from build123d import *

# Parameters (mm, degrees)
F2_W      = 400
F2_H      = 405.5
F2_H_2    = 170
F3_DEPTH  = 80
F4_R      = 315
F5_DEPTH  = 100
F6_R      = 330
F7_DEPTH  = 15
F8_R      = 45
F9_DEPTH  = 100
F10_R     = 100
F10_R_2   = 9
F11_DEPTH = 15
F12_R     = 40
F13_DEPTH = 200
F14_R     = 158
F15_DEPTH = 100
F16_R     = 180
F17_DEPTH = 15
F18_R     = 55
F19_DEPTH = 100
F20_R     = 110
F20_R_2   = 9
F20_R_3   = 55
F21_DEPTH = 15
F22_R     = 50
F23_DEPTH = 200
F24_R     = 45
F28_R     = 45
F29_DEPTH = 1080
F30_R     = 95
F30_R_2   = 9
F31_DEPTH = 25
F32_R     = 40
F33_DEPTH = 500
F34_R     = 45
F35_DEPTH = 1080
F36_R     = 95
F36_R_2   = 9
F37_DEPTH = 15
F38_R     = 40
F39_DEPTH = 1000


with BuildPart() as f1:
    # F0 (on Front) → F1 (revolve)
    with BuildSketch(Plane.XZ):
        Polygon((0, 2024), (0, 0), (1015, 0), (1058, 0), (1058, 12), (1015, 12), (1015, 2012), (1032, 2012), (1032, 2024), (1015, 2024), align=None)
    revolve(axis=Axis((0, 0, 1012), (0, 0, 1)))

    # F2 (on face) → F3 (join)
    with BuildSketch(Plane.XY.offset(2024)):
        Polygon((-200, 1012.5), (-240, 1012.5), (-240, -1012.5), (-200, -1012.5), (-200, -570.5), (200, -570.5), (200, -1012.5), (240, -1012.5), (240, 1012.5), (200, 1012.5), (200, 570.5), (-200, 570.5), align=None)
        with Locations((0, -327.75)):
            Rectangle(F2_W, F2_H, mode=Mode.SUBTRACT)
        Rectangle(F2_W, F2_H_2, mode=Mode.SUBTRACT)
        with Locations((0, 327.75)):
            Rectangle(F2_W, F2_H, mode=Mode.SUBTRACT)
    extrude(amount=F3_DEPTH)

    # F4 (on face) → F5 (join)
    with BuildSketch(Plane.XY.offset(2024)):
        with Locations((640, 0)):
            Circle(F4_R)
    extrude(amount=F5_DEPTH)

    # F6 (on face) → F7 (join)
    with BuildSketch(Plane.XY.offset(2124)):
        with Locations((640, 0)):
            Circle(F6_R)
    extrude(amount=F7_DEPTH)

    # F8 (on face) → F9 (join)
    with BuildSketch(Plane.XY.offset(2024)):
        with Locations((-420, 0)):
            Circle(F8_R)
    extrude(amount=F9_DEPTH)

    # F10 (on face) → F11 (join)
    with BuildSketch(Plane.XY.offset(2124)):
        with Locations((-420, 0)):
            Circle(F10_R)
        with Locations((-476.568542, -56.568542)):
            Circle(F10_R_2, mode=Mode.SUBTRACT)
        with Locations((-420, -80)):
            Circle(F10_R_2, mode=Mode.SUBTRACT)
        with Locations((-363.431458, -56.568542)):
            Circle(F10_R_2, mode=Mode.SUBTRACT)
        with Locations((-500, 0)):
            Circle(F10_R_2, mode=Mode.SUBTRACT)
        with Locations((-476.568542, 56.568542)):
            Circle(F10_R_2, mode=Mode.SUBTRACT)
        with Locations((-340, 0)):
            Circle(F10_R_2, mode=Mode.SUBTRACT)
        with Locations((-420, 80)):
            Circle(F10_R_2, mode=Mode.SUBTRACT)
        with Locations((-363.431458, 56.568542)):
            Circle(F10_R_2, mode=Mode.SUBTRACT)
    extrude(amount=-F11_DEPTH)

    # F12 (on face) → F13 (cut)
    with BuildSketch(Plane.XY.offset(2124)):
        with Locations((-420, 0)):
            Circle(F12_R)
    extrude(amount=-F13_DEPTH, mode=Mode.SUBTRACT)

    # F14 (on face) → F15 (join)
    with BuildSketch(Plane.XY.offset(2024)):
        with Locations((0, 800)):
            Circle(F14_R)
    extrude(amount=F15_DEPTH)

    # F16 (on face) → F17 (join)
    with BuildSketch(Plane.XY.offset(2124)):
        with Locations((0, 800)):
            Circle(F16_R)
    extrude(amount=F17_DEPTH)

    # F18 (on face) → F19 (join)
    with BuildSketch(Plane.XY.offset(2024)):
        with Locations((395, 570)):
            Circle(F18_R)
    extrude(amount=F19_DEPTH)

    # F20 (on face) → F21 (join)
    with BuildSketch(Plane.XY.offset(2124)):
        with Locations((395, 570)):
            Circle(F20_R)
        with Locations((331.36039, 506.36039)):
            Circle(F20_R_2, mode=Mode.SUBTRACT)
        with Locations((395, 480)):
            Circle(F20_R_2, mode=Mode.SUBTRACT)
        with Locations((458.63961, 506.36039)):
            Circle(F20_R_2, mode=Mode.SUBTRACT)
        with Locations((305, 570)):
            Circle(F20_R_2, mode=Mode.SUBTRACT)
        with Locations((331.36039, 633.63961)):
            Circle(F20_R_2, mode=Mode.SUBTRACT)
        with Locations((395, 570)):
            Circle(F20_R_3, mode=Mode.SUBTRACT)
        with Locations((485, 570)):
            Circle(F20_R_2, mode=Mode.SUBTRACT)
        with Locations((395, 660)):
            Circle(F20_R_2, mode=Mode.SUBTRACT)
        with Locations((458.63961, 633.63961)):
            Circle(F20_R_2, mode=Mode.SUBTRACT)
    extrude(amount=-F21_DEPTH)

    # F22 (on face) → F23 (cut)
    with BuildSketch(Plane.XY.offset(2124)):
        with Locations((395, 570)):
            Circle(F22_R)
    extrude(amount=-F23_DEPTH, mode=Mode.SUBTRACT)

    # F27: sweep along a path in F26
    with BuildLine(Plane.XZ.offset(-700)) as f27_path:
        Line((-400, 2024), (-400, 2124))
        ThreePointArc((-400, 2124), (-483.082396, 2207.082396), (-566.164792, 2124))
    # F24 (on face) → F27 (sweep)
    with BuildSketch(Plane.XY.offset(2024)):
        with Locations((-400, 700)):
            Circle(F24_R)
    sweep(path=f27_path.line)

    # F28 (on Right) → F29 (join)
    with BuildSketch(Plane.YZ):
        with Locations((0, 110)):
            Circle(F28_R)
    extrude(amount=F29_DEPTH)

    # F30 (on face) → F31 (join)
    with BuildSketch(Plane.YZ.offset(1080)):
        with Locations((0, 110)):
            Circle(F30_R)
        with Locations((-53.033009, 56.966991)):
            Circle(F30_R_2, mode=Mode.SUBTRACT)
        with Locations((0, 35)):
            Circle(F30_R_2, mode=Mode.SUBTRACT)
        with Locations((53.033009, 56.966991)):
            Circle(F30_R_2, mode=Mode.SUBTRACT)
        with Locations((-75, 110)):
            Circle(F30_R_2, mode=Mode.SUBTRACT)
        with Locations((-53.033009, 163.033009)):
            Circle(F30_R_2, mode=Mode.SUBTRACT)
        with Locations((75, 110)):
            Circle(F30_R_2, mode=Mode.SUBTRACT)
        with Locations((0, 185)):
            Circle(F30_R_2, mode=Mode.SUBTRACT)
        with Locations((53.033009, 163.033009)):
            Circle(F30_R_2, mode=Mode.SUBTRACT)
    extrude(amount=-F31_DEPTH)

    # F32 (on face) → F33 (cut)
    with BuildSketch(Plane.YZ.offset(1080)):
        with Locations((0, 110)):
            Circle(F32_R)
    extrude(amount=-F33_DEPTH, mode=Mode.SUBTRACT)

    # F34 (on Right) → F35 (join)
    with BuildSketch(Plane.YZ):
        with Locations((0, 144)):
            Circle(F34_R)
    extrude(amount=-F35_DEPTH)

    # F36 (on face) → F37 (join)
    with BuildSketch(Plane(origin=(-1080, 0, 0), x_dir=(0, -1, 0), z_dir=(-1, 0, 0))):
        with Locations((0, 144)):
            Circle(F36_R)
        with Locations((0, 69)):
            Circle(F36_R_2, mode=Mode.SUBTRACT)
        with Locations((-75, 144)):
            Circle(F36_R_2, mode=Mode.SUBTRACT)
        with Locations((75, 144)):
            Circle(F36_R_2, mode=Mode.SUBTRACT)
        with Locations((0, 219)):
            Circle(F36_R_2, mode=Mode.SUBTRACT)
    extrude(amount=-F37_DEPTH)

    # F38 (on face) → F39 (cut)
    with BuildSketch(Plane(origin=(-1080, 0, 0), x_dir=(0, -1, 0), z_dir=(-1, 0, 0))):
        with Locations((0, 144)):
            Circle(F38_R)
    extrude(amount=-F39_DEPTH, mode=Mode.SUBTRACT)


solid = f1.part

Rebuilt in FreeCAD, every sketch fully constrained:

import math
import FreeCAD as App
import Part
import Sketcher
from FreeCAD import Vector


def add_polygon(sketch, points):
    """Adds a closed chain of lines whose ends are joined by coincident constraints."""
    first, n = sketch.GeometryCount, len(points)
    for a, b in zip(points, points[1:] + points[:1]):
        sketch.addGeometry(Part.LineSegment(App.Vector(*a, 0), App.Vector(*b, 0)), False)
    for i in range(n):
        sketch.addConstraint(Sketcher.Constraint("Coincident", first + i, 2, first + (i + 1) % n, 1))

doc = App.newDocument("Part")
body = doc.addObject("PartDesign::Body", "Body")

# Sketch on XZ plane
sketch1 = body.newObject("Sketcher::SketchObject", "Sketch")
sketch1.AttachmentSupport = (doc.getObject("XZ_Plane"), [""])
sketch1.MapMode = "FlatFace"
add_polygon(sketch1, [(0, 2024), (0, 0), (1058, 0), (1058, 12), (1015, 12), (1015, 2012), (1032, 2012), (1032, 2024)])  # lines 0-7
sketch1.addConstraint([
    Sketcher.Constraint("Vertical", 0),
    Sketcher.Constraint("Horizontal", 1),
    Sketcher.Constraint("Vertical", 2),
    Sketcher.Constraint("Horizontal", 3),
    Sketcher.Constraint("Vertical", 4),
    Sketcher.Constraint("Horizontal", 5),
    Sketcher.Constraint("Vertical", 6),
    Sketcher.Constraint("Horizontal", 7),
    Sketcher.Constraint("Coincident", 0, 2, -1, 1),
    Sketcher.Constraint("Equal", 2, 6),
    Sketcher.Constraint("DistanceX", 1, 1, 1, 2, 1058.0),
    Sketcher.Constraint("DistanceX", 3, 2, 3, 1, 43.0),
    Sketcher.Constraint("DistanceX", 5, 1, 5, 2, 17.0),
    Sketcher.Constraint("DistanceY", 0, 2, 0, 1, 2024.0),
    Sketcher.Constraint("DistanceY", 2, 1, 2, 2, 12.0),
])
revolution = body.newObject("PartDesign::Revolution", "Revolution")
revolution.Profile = sketch1
revolution.ReferenceAxis = (sketch1, ["V_Axis"])
revolution.Angle = 360

# Sketch on XY plane
sketch2 = body.newObject("Sketcher::SketchObject", "Sketch001")
sketch2.AttachmentSupport = (doc.getObject("XY_Plane"), [""])
sketch2.MapMode = "FlatFace"
sketch2.AttachmentOffset = App.Placement(Vector(0, 0, 2024), App.Rotation())
add_polygon(sketch2, [(-200, 1012), (-240, 1012), (-240, -1012), (-200, -1012), (-200, -570), (200, -570), (200, -1012), (240, -1012), (240, 1012), (200, 1012), (200, 570), (-200, 570)])  # lines 0-11
add_polygon(sketch2, [(200, -530), (-200, -530), (-200, -125), (200, -125)])  # lines 12-15
add_polygon(sketch2, [(200, -85), (-200, -85), (-200, 85), (200, 85)])  # lines 16-19
add_polygon(sketch2, [(200, 125), (-200, 125), (-200, 530), (200, 530)])  # lines 20-23
sketch2.addConstraint([
    Sketcher.Constraint("Horizontal", 0),
    Sketcher.Constraint("Vertical", 1),
    Sketcher.Constraint("Horizontal", 2),
    Sketcher.Constraint("Vertical", 3),
    Sketcher.Constraint("Horizontal", 4),
    Sketcher.Constraint("Vertical", 5),
    Sketcher.Constraint("Horizontal", 6),
    Sketcher.Constraint("Vertical", 7),
    Sketcher.Constraint("Horizontal", 8),
    Sketcher.Constraint("Vertical", 9),
    Sketcher.Constraint("Horizontal", 10),
    Sketcher.Constraint("Vertical", 11),
    Sketcher.Constraint("Horizontal", 12),
    Sketcher.Constraint("Vertical", 13),
    Sketcher.Constraint("Horizontal", 14),
    Sketcher.Constraint("Vertical", 15),
    Sketcher.Constraint("Horizontal", 16),
    Sketcher.Constraint("Vertical", 17),
    Sketcher.Constraint("Horizontal", 18),
    Sketcher.Constraint("Vertical", 19),
    Sketcher.Constraint("Horizontal", 20),
    Sketcher.Constraint("Vertical", 21),
    Sketcher.Constraint("Horizontal", 22),
    Sketcher.Constraint("Vertical", 23),
    Sketcher.Constraint("Symmetric", 0, 2, 6, 2, -1, 1),
    Sketcher.Constraint("Symmetric", 2, 2, 8, 2, -1, 1),
    Sketcher.Constraint("Symmetric", 4, 2, 10, 2, -1, 1),
    Sketcher.Constraint("Symmetric", 16, 2, 18, 2, -1, 1),
    Sketcher.Constraint("Symmetric", 14, 2, 20, 2, -1, 1),
    Sketcher.Constraint("Symmetric", 12, 2, 22, 2, -1, 1),
    Sketcher.Constraint("Symmetric", 2, 2, 5, 2, -2),
    Sketcher.Constraint("Vertical", 11, 2, 12, 2),
    Sketcher.Constraint("Vertical", 9, 2, 14, 2),
    Sketcher.Constraint("Vertical", 13, 2, 16, 2),
    Sketcher.Constraint("DistanceX", 0, 2, 0, 1, 40.0),
    Sketcher.Constraint("DistanceX", 4, 1, 4, 2, 400.0),
    Sketcher.Constraint("DistanceY", 1, 2, 1, 1, 2025.0),
    Sketcher.Constraint("DistanceY", 3, 1, 3, 2, 442.0),
    Sketcher.Constraint("DistanceY", 17, 1, 17, 2, 170.0),
    Sketcher.Constraint("DistanceY", 13, 1, 13, 2, 405.5),
    Sketcher.Constraint("DistanceY", 13, 2, -1, 1, 125.0),
])
pad1 = body.newObject("PartDesign::Pad", "Pad")
pad1.Profile = sketch2
pad1.Length = 80

# Sketch on XY plane
sketch3 = body.newObject("Sketcher::SketchObject", "Sketch002")
sketch3.AttachmentSupport = (doc.getObject("XY_Plane"), [""])
sketch3.MapMode = "FlatFace"
sketch3.AttachmentOffset = App.Placement(Vector(0, 0, 2024), App.Rotation())
sketch3.addGeometry(Part.Circle(Vector(640, 0, 0), Vector(0, 0, 1), 315), False)
sketch3.addConstraint([
    Sketcher.Constraint("PointOnObject", 0, 3, -1),
    Sketcher.Constraint("Diameter", 0, 630.0),
    Sketcher.Constraint("DistanceX", -1, 1, 0, 3, 640.0),
])
pad2 = body.newObject("PartDesign::Pad", "Pad001")
pad2.Profile = sketch3
pad2.Length = 100

# Sketch on XY plane
sketch4 = body.newObject("Sketcher::SketchObject", "Sketch003")
sketch4.AttachmentSupport = (doc.getObject("XY_Plane"), [""])
sketch4.MapMode = "FlatFace"
sketch4.AttachmentOffset = App.Placement(Vector(0, 0, 2124), App.Rotation())
sketch4.addGeometry(Part.Circle(Vector(640, 0, 0), Vector(0, 0, 1), 330), False)
sketch4.addConstraint([
    Sketcher.Constraint("PointOnObject", 0, 3, -1),
    Sketcher.Constraint("Diameter", 0, 660.0),
    Sketcher.Constraint("DistanceX", -1, 1, 0, 3, 640.0),
])
pad3 = body.newObject("PartDesign::Pad", "Pad002")
pad3.Profile = sketch4
pad3.Length = 15

# Sketch on XY plane
sketch5 = body.newObject("Sketcher::SketchObject", "Sketch004")
sketch5.AttachmentSupport = (doc.getObject("XY_Plane"), [""])
sketch5.MapMode = "FlatFace"
sketch5.AttachmentOffset = App.Placement(Vector(0, 0, 2024), App.Rotation())
sketch5.addGeometry(Part.Circle(Vector(-420, 0, 0), Vector(0, 0, 1), 45), False)
sketch5.addConstraint([
    Sketcher.Constraint("PointOnObject", 0, 3, -1),
    Sketcher.Constraint("Diameter", 0, 90.0),
    Sketcher.Constraint("DistanceX", 0, 3, -1, 1, 420.0),
])
pad4 = body.newObject("PartDesign::Pad", "Pad003")
pad4.Profile = sketch5
pad4.Length = 100

# Sketch on XY plane
sketch6 = body.newObject("Sketcher::SketchObject", "Sketch005")
sketch6.AttachmentSupport = (doc.getObject("XY_Plane"), [""])
sketch6.MapMode = "FlatFace"
sketch6.AttachmentOffset = App.Placement(Vector(0, 0, 2124), App.Rotation())
sketch6.addGeometry([
    Part.Circle(Vector(-420, 0, 0), Vector(0, 0, 1), 100),  # 0
    Part.Circle(Vector(-477, -57, 0), Vector(0, 0, 1), 9),  # 1
    Part.Circle(Vector(-420, -80, 0), Vector(0, 0, 1), 9),  # 2
    Part.Circle(Vector(-363, -57, 0), Vector(0, 0, 1), 9),  # 3
    Part.Circle(Vector(-500, 0, 0), Vector(0, 0, 1), 9),  # 4
    Part.Circle(Vector(-477, 57, 0), Vector(0, 0, 1), 9),  # 5
    Part.Circle(Vector(-340, 0, 0), Vector(0, 0, 1), 9),  # 6
    Part.Circle(Vector(-420, 80, 0), Vector(0, 0, 1), 9),  # 7
    Part.Circle(Vector(-363, 57, 0), Vector(0, 0, 1), 9),  # 8
], False)
sketch6.addConstraint([
    Sketcher.Constraint("Equal", 1, 2),
    Sketcher.Constraint("Equal", 2, 3),
    Sketcher.Constraint("Equal", 3, 4),
    Sketcher.Constraint("Equal", 4, 5),
    Sketcher.Constraint("Equal", 5, 6),
    Sketcher.Constraint("Equal", 6, 7),
    Sketcher.Constraint("Equal", 7, 8),
    Sketcher.Constraint("Symmetric", 1, 3, 5, 3, -1),
    Sketcher.Constraint("Symmetric", 2, 3, 7, 3, -1),
    Sketcher.Constraint("Symmetric", 3, 3, 8, 3, -1),
    Sketcher.Constraint("PointOnObject", 0, 3, -1),
    Sketcher.Constraint("PointOnObject", 4, 3, -1),
    Sketcher.Constraint("PointOnObject", 6, 3, -1),
    Sketcher.Constraint("Horizontal", 1, 3, 3, 3),
    Sketcher.Constraint("Vertical", 0, 3, 2, 3),
    Sketcher.Constraint("Diameter", 0, 200.0),
    Sketcher.Constraint("Diameter", 1, 18.0),
    Sketcher.Constraint("DistanceX", 0, 3, -1, 1, 420.0),
    Sketcher.Constraint("DistanceY", 2, 3, -1, 1, 80.0),
    Sketcher.Constraint("DistanceX", 4, 3, -1, 1, 500.0),
    Sketcher.Constraint("DistanceX", 6, 3, -1, 1, 340.0),
    Sketcher.Constraint("DistanceX", 1, 3, -1, 1, 476.568542),
    Sketcher.Constraint("DistanceX", 3, 3, -1, 1, 363.431458),
    Sketcher.Constraint("DistanceY", 2, 3, 5, 3, 136.568542),
])
pad5 = body.newObject("PartDesign::Pad", "Pad004")
pad5.Profile = sketch6
pad5.Length = 15
pad5.Reversed = True

# Sketch on XY plane
sketch7 = body.newObject("Sketcher::SketchObject", "Sketch006")
sketch7.AttachmentSupport = (doc.getObject("XY_Plane"), [""])
sketch7.MapMode = "FlatFace"
sketch7.AttachmentOffset = App.Placement(Vector(0, 0, 2124), App.Rotation())
sketch7.addGeometry(Part.Circle(Vector(-420, 0, 0), Vector(0, 0, 1), 40), False)
sketch7.addConstraint([
    Sketcher.Constraint("PointOnObject", 0, 3, -1),
    Sketcher.Constraint("Diameter", 0, 80.0),
    Sketcher.Constraint("DistanceX", 0, 3, -1, 1, 420.0),
])
pocket1 = body.newObject("PartDesign::Pocket", "Pocket")
pocket1.Profile = sketch7
pocket1.Length = 200

# Sketch on XY plane
sketch8 = body.newObject("Sketcher::SketchObject", "Sketch007")
sketch8.AttachmentSupport = (doc.getObject("XY_Plane"), [""])
sketch8.MapMode = "FlatFace"
sketch8.AttachmentOffset = App.Placement(Vector(0, 0, 2024), App.Rotation())
sketch8.addGeometry(Part.Circle(Vector(0, 800, 0), Vector(0, 0, 1), 158), False)
sketch8.addConstraint([
    Sketcher.Constraint("PointOnObject", 0, 3, -2),
    Sketcher.Constraint("Diameter", 0, 316.0),
    Sketcher.Constraint("DistanceY", -1, 1, 0, 3, 800.0),
])
pad6 = body.newObject("PartDesign::Pad", "Pad005")
pad6.Profile = sketch8
pad6.Length = 100

# Sketch on XY plane
sketch9 = body.newObject("Sketcher::SketchObject", "Sketch008")
sketch9.AttachmentSupport = (doc.getObject("XY_Plane"), [""])
sketch9.MapMode = "FlatFace"
sketch9.AttachmentOffset = App.Placement(Vector(0, 0, 2124), App.Rotation())
sketch9.addGeometry(Part.Circle(Vector(0, 800, 0), Vector(0, 0, 1), 180), False)
sketch9.addConstraint([
    Sketcher.Constraint("PointOnObject", 0, 3, -2),
    Sketcher.Constraint("Diameter", 0, 360.0),
    Sketcher.Constraint("DistanceY", -1, 1, 0, 3, 800.0),
])
pad7 = body.newObject("PartDesign::Pad", "Pad006")
pad7.Profile = sketch9
pad7.Length = 15

# Sketch on XY plane
sketch10 = body.newObject("Sketcher::SketchObject", "Sketch009")
sketch10.AttachmentSupport = (doc.getObject("XY_Plane"), [""])
sketch10.MapMode = "FlatFace"
sketch10.AttachmentOffset = App.Placement(Vector(0, 0, 2024), App.Rotation())
sketch10.addGeometry(Part.Circle(Vector(395, 570, 0), Vector(0, 0, 1), 55), False)
sketch10.addConstraint([
    Sketcher.Constraint("Diameter", 0, 110.0),
    Sketcher.Constraint("DistanceX", -1, 1, 0, 3, 395.0),
    Sketcher.Constraint("DistanceY", -1, 1, 0, 3, 570.0),
])
pad8 = body.newObject("PartDesign::Pad", "Pad007")
pad8.Profile = sketch10
pad8.Length = 100

# Sketch on XY plane
sketch11 = body.newObject("Sketcher::SketchObject", "Sketch010")
sketch11.AttachmentSupport = (doc.getObject("XY_Plane"), [""])
sketch11.MapMode = "FlatFace"
sketch11.AttachmentOffset = App.Placement(Vector(0, 0, 2124), App.Rotation())
sketch11.addGeometry([
    Part.Circle(Vector(395, 570, 0), Vector(0, 0, 1), 110),  # 0
    Part.Circle(Vector(331, 506, 0), Vector(0, 0, 1), 9),  # 1
    Part.Circle(Vector(395, 480, 0), Vector(0, 0, 1), 9),  # 2
    Part.Circle(Vector(459, 506, 0), Vector(0, 0, 1), 9),  # 3
    Part.Circle(Vector(305, 570, 0), Vector(0, 0, 1), 9),  # 4
    Part.Circle(Vector(331, 634, 0), Vector(0, 0, 1), 9),  # 5
    Part.Circle(Vector(395, 570, 0), Vector(0, 0, 1), 55),  # 6
    Part.Circle(Vector(485, 570, 0), Vector(0, 0, 1), 9),  # 7
    Part.Circle(Vector(395, 660, 0), Vector(0, 0, 1), 9),  # 8
    Part.Circle(Vector(459, 634, 0), Vector(0, 0, 1), 9),  # 9
], False)
sketch11.addConstraint([
    Sketcher.Constraint("Coincident", 6, 3, 0, 3),
    Sketcher.Constraint("Equal", 1, 2),
    Sketcher.Constraint("Equal", 2, 3),
    Sketcher.Constraint("Equal", 3, 4),
    Sketcher.Constraint("Equal", 4, 5),
    Sketcher.Constraint("Equal", 5, 7),
    Sketcher.Constraint("Equal", 7, 8),
    Sketcher.Constraint("Equal", 8, 9),
    Sketcher.Constraint("Horizontal", 1, 3, 3, 3),
    Sketcher.Constraint("Horizontal", 0, 3, 4, 3),
    Sketcher.Constraint("Horizontal", 6, 3, 7, 3),
    Sketcher.Constraint("Horizontal", 5, 3, 9, 3),
    Sketcher.Constraint("Vertical", 0, 3, 2, 3),
    Sketcher.Constraint("Vertical", 1, 3, 5, 3),
    Sketcher.Constraint("Vertical", 6, 3, 8, 3),
    Sketcher.Constraint("Vertical", 3, 3, 9, 3),
    Sketcher.Constraint("Diameter", 0, 220.0),
    Sketcher.Constraint("Diameter", 1, 18.0),
    Sketcher.Constraint("Diameter", 6, 110.0),
    Sketcher.Constraint("DistanceX", -1, 1, 0, 3, 395.0),
    Sketcher.Constraint("DistanceY", -1, 1, 0, 3, 570.0),
    Sketcher.Constraint("DistanceY", -1, 1, 2, 3, 480.0),
    Sketcher.Constraint("DistanceX", -1, 1, 4, 3, 305.0),
    Sketcher.Constraint("DistanceX", -1, 1, 7, 3, 485.0),
    Sketcher.Constraint("DistanceY", -1, 1, 8, 3, 660.0),
    Sketcher.Constraint("DistanceX", -1, 1, 1, 3, 331.36039),
    Sketcher.Constraint("DistanceY", -1, 1, 1, 3, 506.36039),
    Sketcher.Constraint("DistanceX", -1, 1, 3, 3, 458.63961),
    Sketcher.Constraint("DistanceY", -1, 1, 5, 3, 633.63961),
])
pad9 = body.newObject("PartDesign::Pad", "Pad008")
pad9.Profile = sketch11
pad9.Length = 15
pad9.Reversed = True

# Sketch on XY plane
sketch12 = body.newObject("Sketcher::SketchObject", "Sketch011")
sketch12.AttachmentSupport = (doc.getObject("XY_Plane"), [""])
sketch12.MapMode = "FlatFace"
sketch12.AttachmentOffset = App.Placement(Vector(0, 0, 2124), App.Rotation())
sketch12.addGeometry(Part.Circle(Vector(395, 570, 0), Vector(0, 0, 1), 50), False)
sketch12.addConstraint([
    Sketcher.Constraint("Diameter", 0, 100.0),
    Sketcher.Constraint("DistanceX", -1, 1, 0, 3, 395.0),
    Sketcher.Constraint("DistanceY", -1, 1, 0, 3, 570.0),
])
pocket2 = body.newObject("PartDesign::Pocket", "Pocket001")
pocket2.Profile = sketch12
pocket2.Length = 200

# Sketch on XY plane
sketch13 = body.newObject("Sketcher::SketchObject", "Sketch012")
sketch13.AttachmentSupport = (doc.getObject("XY_Plane"), [""])
sketch13.MapMode = "FlatFace"
sketch13.AttachmentOffset = App.Placement(Vector(0, 0, 2024), App.Rotation())
sketch13.addGeometry(Part.Circle(Vector(-400, 700, 0), Vector(0, 0, 1), 45), False)
sketch13.addConstraint([
    Sketcher.Constraint("Diameter", 0, 90.0),
    Sketcher.Constraint("DistanceX", 0, 3, -1, 1, 400.0),
    Sketcher.Constraint("DistanceY", -1, 1, 0, 3, 700.0),
])

# Sketch on XZ plane
sketch14 = body.newObject("Sketcher::SketchObject", "Sketch013")
sketch14.AttachmentSupport = (doc.getObject("XZ_Plane"), [""])
sketch14.MapMode = "FlatFace"
sketch14.AttachmentOffset = App.Placement(Vector(0, 0, -700), App.Rotation())
sketch14.addGeometry([
    Part.LineSegment(Vector(-400, 2024, 0), Vector(-400, 2124, 0)),
    Part.ArcOfCircle(Part.Circle(Vector(-483, 2124, 0), Vector(0, 0, 1), 83), math.radians(0), math.radians(180)),
], False)
sketch14.addConstraint([
    Sketcher.Constraint("Tangent", 0, 2, 1, 1),
    Sketcher.Constraint("Vertical", 0),
    Sketcher.Constraint("Horizontal", 0, 2, 1, 2),
    Sketcher.Constraint("DistanceY", 0, 1, 0, 2, 100.0),
    Sketcher.Constraint("DistanceY", -1, 1, 1, 3, 2124.0),
    Sketcher.Constraint("DistanceX", 0, 1, -1, 1, 400.0),
    Sketcher.Constraint("Radius", 1, 83.082396),
])
doc.recompute()

additivepipe = body.newObject("PartDesign::AdditivePipe", "AdditivePipe")
additivepipe.Profile = sketch13
additivepipe.Spine = (sketch14, ["Edge1", "Edge2"])

# Sketch on YZ plane
sketch15 = body.newObject("Sketcher::SketchObject", "Sketch014")
sketch15.AttachmentSupport = (doc.getObject("YZ_Plane"), [""])
sketch15.MapMode = "FlatFace"
sketch15.addGeometry(Part.Circle(Vector(0, 110, 0), Vector(0, 0, 1), 45), False)
sketch15.addConstraint([
    Sketcher.Constraint("PointOnObject", 0, 3, -2),
    Sketcher.Constraint("Diameter", 0, 90.0),
    Sketcher.Constraint("DistanceY", -1, 1, 0, 3, 110.0),
])
pad10 = body.newObject("PartDesign::Pad", "Pad009")
pad10.Profile = sketch15
pad10.Length = 1080

# Sketch on YZ plane
sketch16 = body.newObject("Sketcher::SketchObject", "Sketch015")
sketch16.AttachmentSupport = (doc.getObject("YZ_Plane"), [""])
sketch16.MapMode = "FlatFace"
sketch16.AttachmentOffset = App.Placement(Vector(0, 0, 1080), App.Rotation())
sketch16.addGeometry([
    Part.Circle(Vector(0, 110, 0), Vector(0, 0, 1), 95),  # 0
    Part.Circle(Vector(-53, 57, 0), Vector(0, 0, 1), 9),  # 1
    Part.Circle(Vector(0, 35, 0), Vector(0, 0, 1), 9),  # 2
    Part.Circle(Vector(53, 57, 0), Vector(0, 0, 1), 9),  # 3
    Part.Circle(Vector(-75, 110, 0), Vector(0, 0, 1), 9),  # 4
    Part.Circle(Vector(-53, 163, 0), Vector(0, 0, 1), 9),  # 5
    Part.Circle(Vector(75, 110, 0), Vector(0, 0, 1), 9),  # 6
    Part.Circle(Vector(0, 185, 0), Vector(0, 0, 1), 9),  # 7
    Part.Circle(Vector(53, 163, 0), Vector(0, 0, 1), 9),  # 8
], False)
sketch16.addConstraint([
    Sketcher.Constraint("Equal", 1, 2),
    Sketcher.Constraint("Equal", 2, 3),
    Sketcher.Constraint("Equal", 3, 4),
    Sketcher.Constraint("Equal", 4, 5),
    Sketcher.Constraint("Equal", 5, 6),
    Sketcher.Constraint("Equal", 6, 7),
    Sketcher.Constraint("Equal", 7, 8),
    Sketcher.Constraint("Symmetric", 1, 3, 3, 3, -2),
    Sketcher.Constraint("Symmetric", 4, 3, 6, 3, -2),
    Sketcher.Constraint("Symmetric", 5, 3, 8, 3, -2),
    Sketcher.Constraint("PointOnObject", 0, 3, -2),
    Sketcher.Constraint("PointOnObject", 2, 3, -2),
    Sketcher.Constraint("PointOnObject", 7, 3, -2),
    Sketcher.Constraint("Horizontal", 0, 3, 4, 3),
    Sketcher.Constraint("Vertical", 1, 3, 5, 3),
    Sketcher.Constraint("Diameter", 0, 190.0),
    Sketcher.Constraint("Diameter", 1, 18.0),
    Sketcher.Constraint("DistanceY", -1, 1, 0, 3, 110.0),
    Sketcher.Constraint("DistanceY", -1, 1, 2, 3, 35.0),
    Sketcher.Constraint("DistanceX", 4, 3, -1, 1, 75.0),
    Sketcher.Constraint("DistanceY", -1, 1, 7, 3, 185.0),
    Sketcher.Constraint("DistanceX", 1, 3, -1, 1, 53.033009),
    Sketcher.Constraint("DistanceY", -1, 1, 1, 3, 56.966991),
    Sketcher.Constraint("DistanceY", -1, 1, 5, 3, 163.033009),
])
pad11 = body.newObject("PartDesign::Pad", "Pad010")
pad11.Profile = sketch16
pad11.Length = 25
pad11.Reversed = True

# Sketch on YZ plane
sketch17 = body.newObject("Sketcher::SketchObject", "Sketch016")
sketch17.AttachmentSupport = (doc.getObject("YZ_Plane"), [""])
sketch17.MapMode = "FlatFace"
sketch17.AttachmentOffset = App.Placement(Vector(0, 0, 1080), App.Rotation())
sketch17.addGeometry(Part.Circle(Vector(0, 110, 0), Vector(0, 0, 1), 40), False)
sketch17.addConstraint([
    Sketcher.Constraint("PointOnObject", 0, 3, -2),
    Sketcher.Constraint("Diameter", 0, 80.0),
    Sketcher.Constraint("DistanceY", -1, 1, 0, 3, 110.0),
])
pocket3 = body.newObject("PartDesign::Pocket", "Pocket002")
pocket3.Profile = sketch17
pocket3.Length = 500

# Sketch on YZ plane
sketch18 = body.newObject("Sketcher::SketchObject", "Sketch017")
sketch18.AttachmentSupport = (doc.getObject("YZ_Plane"), [""])
sketch18.MapMode = "FlatFace"
sketch18.addGeometry(Part.Circle(Vector(0, 144, 0), Vector(0, 0, 1), 45), False)
sketch18.addConstraint([
    Sketcher.Constraint("PointOnObject", 0, 3, -2),
    Sketcher.Constraint("Diameter", 0, 90.0),
    Sketcher.Constraint("DistanceY", -1, 1, 0, 3, 144.0),
])
pad12 = body.newObject("PartDesign::Pad", "Pad011")
pad12.Profile = sketch18
pad12.Length = 1080
pad12.Reversed = True

# Sketch on YZ plane
sketch19 = body.newObject("Sketcher::SketchObject", "Sketch018")
sketch19.AttachmentSupport = (doc.getObject("YZ_Plane"), [""])
sketch19.MapMode = "FlatFace"
sketch19.AttachmentOffset = App.Placement(Vector(0, 0, -1080), App.Rotation())
sketch19.addGeometry([
    Part.Circle(Vector(0, 144, 0), Vector(0, 0, 1), 95),  # 0
    Part.Circle(Vector(0, 69, 0), Vector(0, 0, 1), 9),  # 1
    Part.Circle(Vector(75, 144, 0), Vector(0, 0, 1), 9),  # 2
    Part.Circle(Vector(-75, 144, 0), Vector(0, 0, 1), 9),  # 3
    Part.Circle(Vector(0, 219, 0), Vector(0, 0, 1), 9),  # 4
], False)
sketch19.addConstraint([
    Sketcher.Constraint("Equal", 1, 2),
    Sketcher.Constraint("Equal", 2, 3),
    Sketcher.Constraint("Equal", 3, 4),
    Sketcher.Constraint("Symmetric", 2, 3, 3, 3, -2),
    Sketcher.Constraint("PointOnObject", 0, 3, -2),
    Sketcher.Constraint("PointOnObject", 1, 3, -2),
    Sketcher.Constraint("PointOnObject", 4, 3, -2),
    Sketcher.Constraint("Horizontal", 0, 3, 2, 3),
    Sketcher.Constraint("Diameter", 0, 190.0),
    Sketcher.Constraint("Diameter", 1, 18.0),
    Sketcher.Constraint("DistanceY", -1, 1, 0, 3, 144.0),
    Sketcher.Constraint("DistanceY", -1, 1, 1, 3, 69.0),
    Sketcher.Constraint("DistanceX", -1, 1, 2, 3, 75.0),
    Sketcher.Constraint("DistanceY", -1, 1, 4, 3, 219.0),
])
pad13 = body.newObject("PartDesign::Pad", "Pad012")
pad13.Profile = sketch19
pad13.Length = 15

# Sketch on YZ plane
sketch20 = body.newObject("Sketcher::SketchObject", "Sketch019")
sketch20.AttachmentSupport = (doc.getObject("YZ_Plane"), [""])
sketch20.MapMode = "FlatFace"
sketch20.AttachmentOffset = App.Placement(Vector(0, 0, -1080), App.Rotation())
sketch20.addGeometry(Part.Circle(Vector(0, 144, 0), Vector(0, 0, 1), 40), False)
sketch20.addConstraint([
    Sketcher.Constraint("PointOnObject", 0, 3, -2),
    Sketcher.Constraint("Diameter", 0, 80.0),
    Sketcher.Constraint("DistanceY", -1, 1, 0, 3, 144.0),
])
pocket4 = body.newObject("PartDesign::Pocket", "Pocket003")
pocket4.Profile = sketch20
pocket4.Length = 1000
pocket4.Reversed = True

doc.recompute()
